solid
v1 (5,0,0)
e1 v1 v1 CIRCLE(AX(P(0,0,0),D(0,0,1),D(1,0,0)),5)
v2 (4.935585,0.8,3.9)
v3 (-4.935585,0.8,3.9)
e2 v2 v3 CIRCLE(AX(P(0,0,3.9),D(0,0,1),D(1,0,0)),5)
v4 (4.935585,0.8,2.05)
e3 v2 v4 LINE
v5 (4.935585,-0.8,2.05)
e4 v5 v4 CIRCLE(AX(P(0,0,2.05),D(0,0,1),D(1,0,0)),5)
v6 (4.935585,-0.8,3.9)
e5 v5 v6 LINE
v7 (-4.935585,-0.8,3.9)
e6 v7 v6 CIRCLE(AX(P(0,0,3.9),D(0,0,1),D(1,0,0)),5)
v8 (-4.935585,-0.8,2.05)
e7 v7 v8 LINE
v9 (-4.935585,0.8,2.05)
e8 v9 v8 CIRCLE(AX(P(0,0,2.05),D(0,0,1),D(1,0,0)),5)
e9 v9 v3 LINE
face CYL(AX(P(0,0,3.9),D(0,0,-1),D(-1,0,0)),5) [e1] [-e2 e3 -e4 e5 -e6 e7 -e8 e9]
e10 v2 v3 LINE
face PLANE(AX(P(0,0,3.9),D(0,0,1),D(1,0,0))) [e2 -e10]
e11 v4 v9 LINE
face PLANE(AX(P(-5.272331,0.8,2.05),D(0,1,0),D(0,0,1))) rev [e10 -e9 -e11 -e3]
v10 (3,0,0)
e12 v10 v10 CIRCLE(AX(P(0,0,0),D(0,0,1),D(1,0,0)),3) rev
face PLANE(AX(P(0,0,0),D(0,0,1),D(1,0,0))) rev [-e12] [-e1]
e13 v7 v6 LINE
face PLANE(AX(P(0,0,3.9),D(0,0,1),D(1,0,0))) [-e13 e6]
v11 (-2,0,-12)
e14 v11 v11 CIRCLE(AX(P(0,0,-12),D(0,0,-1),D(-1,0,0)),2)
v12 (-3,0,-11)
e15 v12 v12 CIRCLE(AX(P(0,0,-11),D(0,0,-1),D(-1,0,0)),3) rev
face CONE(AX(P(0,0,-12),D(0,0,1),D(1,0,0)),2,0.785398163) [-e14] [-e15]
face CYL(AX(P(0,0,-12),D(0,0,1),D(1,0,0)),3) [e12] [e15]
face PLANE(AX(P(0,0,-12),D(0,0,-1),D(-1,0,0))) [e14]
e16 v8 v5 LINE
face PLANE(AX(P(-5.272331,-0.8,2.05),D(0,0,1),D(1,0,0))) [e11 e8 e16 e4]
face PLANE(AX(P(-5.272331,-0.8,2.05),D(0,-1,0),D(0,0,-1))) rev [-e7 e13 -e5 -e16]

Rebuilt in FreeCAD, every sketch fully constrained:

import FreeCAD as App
import Part
import Sketcher
from FreeCAD import Vector


def edges_at(feature, points):
    """Names of the edges that pass closest to the given points."""
    edges = feature.Shape.Edges
    near = lambda p: min(range(len(edges)), key=lambda i: edges[i].distToShape(Part.Vertex(*p))[0])
    return sorted({f"Edge{near(p) + 1}" for p in points})


def add_polygon(sketch, points):
    """Adds a closed chain of lines whose ends are joined by coincident constraints."""
    first, n = sketch.GeometryCount, len(points)
    for a, b in zip(points, points[1:] + points[:1]):
        sketch.addGeometry(Part.LineSegment(App.Vector(*a, 0), App.Vector(*b, 0)), False)
    for i in range(n):
        sketch.addConstraint(Sketcher.Constraint("Coincident", first + i, 2, first + (i + 1) % n, 1))

doc = App.newDocument("Part")
body = doc.addObject("PartDesign::Body", "Body")

sketch1 = doc.addObject("Sketcher::SketchObject", "Sketch")
body.addObject(sketch1)
sketch1.AttachmentSupport = (doc.XY_Plane, [""])
sketch1.MapMode = "FlatFace"
sketch1.addGeometry(Part.Circle(Vector(0, 0, 0), Vector(0, 0, 1), 5), False)
sketch1.addConstraint([
    Sketcher.Constraint("Coincident", 0, 3, -1, 1),
    Sketcher.Constraint("Diameter", 0, 10.0),
])
pad1 = doc.addObject("PartDesign::Pad", "Pad")
body.addObject(pad1)
pad1.Profile = sketch1
pad1.Length = 3.9

sketch2 = doc.addObject("Sketcher::SketchObject", "Sketch001")
body.addObject(sketch2)
sketch2.AttachmentSupport = (doc.XY_Plane, [""])
sketch2.MapMode = "FlatFace"
sketch2.addGeometry(Part.Circle(Vector(0, 0, 0), Vector(0, 0, 1), 3), False)
sketch2.addConstraint([
    Sketcher.Constraint("Coincident", 0, 3, -1, 1),
    Sketcher.Constraint("Diameter", 0, 6.0),
])
pad2 = doc.addObject("PartDesign::Pad", "Pad001")
body.addObject(pad2)
pad2.Profile = sketch2
pad2.Length = 12
pad2.Reversed = True

sketch3 = doc.addObject("Sketcher::SketchObject", "Sketch002")
body.addObject(sketch3)
sketch3.AttachmentSupport = (doc.XY_Plane, [""])
sketch3.MapMode = "FlatFace"
sketch3.AttachmentOffset = App.Placement(Vector(0, 0, 3.9), App.Rotation())
add_polygon(sketch3, [(-5.272331, 0.8), (-5.272331, -0.8), (5.409275, -0.8), (5.409275, 0.8)])
sketch3.addConstraint([
    Sketcher.Constraint("Vertical", 0),
    Sketcher.Constraint("Horizontal", 1),
    Sketcher.Constraint("Vertical", 2),
    Sketcher.Constraint("Horizontal", 3),
    Sketcher.Constraint("DistanceY", 0, 2, 0, 1, 1.6),
    Sketcher.Constraint("DistanceY", 0, 2, -1, 1, 0.8),
    Sketcher.Constraint("DistanceX", 1, 1, 1, 2, 10.681606),
    Sketcher.Constraint("DistanceX", 0, 2, -1, 1, 5.272331),
])
pocket1 = doc.addObject("PartDesign::Pocket", "Pocket")
body.addObject(pocket1)
pocket1.Profile = sketch3
pocket1.Length = 1.85
doc.recompute()

chamfer = doc.addObject("PartDesign::Chamfer", "Chamfer")
body.addObject(chamfer)
chamfer.Base = (pocket1, edges_at(pocket1, [(-3, 0, -12)]))
chamfer.Size = 1

doc.recompute()
